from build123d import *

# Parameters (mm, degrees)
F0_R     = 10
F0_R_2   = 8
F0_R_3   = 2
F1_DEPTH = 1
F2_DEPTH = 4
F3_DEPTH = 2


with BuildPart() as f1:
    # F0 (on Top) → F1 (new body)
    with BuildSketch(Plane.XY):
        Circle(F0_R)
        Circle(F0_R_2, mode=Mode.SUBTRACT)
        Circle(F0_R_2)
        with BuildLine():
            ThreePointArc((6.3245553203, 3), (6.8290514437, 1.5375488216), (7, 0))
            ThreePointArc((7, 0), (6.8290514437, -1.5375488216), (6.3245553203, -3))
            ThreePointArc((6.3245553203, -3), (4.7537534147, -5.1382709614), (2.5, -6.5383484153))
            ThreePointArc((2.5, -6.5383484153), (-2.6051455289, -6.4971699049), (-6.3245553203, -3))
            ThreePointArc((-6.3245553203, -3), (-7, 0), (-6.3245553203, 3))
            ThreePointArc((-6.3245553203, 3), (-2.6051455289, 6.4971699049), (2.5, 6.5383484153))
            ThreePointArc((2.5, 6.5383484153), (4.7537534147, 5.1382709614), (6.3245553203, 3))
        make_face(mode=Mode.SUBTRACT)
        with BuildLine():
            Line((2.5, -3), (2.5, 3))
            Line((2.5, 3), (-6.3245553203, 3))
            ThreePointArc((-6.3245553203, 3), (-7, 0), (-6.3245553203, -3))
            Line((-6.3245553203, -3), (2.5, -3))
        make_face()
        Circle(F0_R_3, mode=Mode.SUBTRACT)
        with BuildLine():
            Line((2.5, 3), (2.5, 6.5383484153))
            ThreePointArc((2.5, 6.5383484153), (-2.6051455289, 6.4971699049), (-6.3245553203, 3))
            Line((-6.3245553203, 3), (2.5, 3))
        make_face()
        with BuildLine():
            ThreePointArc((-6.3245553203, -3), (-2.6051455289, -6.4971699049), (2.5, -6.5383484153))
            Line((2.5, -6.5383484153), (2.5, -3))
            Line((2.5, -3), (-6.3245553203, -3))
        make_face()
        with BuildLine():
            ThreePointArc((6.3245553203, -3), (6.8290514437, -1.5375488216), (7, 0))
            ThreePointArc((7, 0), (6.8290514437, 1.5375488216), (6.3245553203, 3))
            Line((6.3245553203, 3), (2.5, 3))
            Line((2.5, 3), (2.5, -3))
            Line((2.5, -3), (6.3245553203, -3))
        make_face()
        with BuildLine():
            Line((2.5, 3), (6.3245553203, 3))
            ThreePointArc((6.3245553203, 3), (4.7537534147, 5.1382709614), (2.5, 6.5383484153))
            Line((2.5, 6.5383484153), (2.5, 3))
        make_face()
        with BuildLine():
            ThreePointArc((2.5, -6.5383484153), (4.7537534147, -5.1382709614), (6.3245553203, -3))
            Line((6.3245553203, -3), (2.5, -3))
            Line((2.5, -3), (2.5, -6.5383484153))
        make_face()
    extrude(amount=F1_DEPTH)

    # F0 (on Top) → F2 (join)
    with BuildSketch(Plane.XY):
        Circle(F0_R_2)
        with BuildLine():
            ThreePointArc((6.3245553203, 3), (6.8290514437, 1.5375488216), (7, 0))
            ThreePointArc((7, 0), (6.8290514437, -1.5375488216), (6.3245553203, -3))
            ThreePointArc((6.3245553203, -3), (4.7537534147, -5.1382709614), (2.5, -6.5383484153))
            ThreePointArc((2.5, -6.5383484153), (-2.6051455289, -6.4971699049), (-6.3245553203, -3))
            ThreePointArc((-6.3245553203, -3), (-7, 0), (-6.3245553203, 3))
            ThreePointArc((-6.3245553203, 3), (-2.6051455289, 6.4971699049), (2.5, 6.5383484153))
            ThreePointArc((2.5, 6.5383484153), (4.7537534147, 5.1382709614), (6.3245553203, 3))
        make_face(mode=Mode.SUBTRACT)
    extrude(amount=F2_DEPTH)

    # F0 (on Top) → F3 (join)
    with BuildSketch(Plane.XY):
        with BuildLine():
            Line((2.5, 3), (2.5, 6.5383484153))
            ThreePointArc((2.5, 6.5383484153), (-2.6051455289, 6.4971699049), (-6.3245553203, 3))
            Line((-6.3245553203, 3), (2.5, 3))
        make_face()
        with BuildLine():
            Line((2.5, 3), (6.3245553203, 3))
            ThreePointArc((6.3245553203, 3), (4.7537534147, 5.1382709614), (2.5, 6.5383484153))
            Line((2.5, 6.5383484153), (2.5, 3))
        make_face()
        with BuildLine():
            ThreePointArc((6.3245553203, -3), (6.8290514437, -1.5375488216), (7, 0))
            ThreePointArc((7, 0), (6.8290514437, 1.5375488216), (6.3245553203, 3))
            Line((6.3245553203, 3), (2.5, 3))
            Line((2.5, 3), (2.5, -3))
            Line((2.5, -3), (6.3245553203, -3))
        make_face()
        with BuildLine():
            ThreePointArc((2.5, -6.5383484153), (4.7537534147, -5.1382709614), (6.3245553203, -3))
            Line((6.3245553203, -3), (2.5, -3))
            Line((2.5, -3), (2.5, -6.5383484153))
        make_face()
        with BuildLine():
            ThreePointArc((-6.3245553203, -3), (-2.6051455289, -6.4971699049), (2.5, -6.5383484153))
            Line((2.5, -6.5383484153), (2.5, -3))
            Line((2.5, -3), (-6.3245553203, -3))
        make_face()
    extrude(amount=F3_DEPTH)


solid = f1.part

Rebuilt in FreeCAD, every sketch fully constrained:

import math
import FreeCAD as App
import Part
import Sketcher

doc = App.newDocument("Part")
params = doc.addObject("Spreadsheet::Sheet", "Params")
for row, (alias, value) in enumerate([
    ("sketch1_diameter", "20 mm"),
    ("sketch1_diameter2", "4 mm"),
    ("pad1_length", "1 mm"),
    ("sketch2_diameter", "16 mm"),
    ("sketch2_radius", "7 mm"),
    ("pad2_length", "4 mm"),
    ("sketch3_radius", "7 mm"),
    ("sketch3_height", "6 mm"),
    ("pad3_length", "2 mm"),
], start=1):
    params.set(f"A{row}", alias)
    params.set(f"B{row}", "=" + value)
    params.setAlias(f"B{row}", alias)

body = doc.addObject("PartDesign::Body", "Body")

sketch1 = body.newObject("Sketcher::SketchObject", "Sketch")
sketch1.AttachmentSupport = (doc.getObject("XY_Plane"), [""])
sketch1.MapMode = "FlatFace"
sketch1.addGeometry([
    Part.Circle(App.Vector(0, 0, 0), App.Vector(0, 0, 1), 10),
    Part.Circle(App.Vector(0, 0, 0), App.Vector(0, 0, 1), 2),
], False)
sketch1.addConstraint([
    Sketcher.Constraint("Coincident", 0, 3, -1, 1),
    Sketcher.Constraint("Coincident", 1, 3, -1, 1),
    Sketcher.Constraint("Diameter", 0, 20.0),
    Sketcher.Constraint("Diameter", 1, 4.0),
])
sketch1.setExpression("Constraints[2]", "Params.sketch1_diameter")
sketch1.setExpression("Constraints[3]", "Params.sketch1_diameter2")
pad1 = body.newObject("PartDesign::Pad", "Pad")
pad1.Profile = sketch1
pad1.setExpression("Length", "Params.pad1_length")

sketch2 = body.newObject("Sketcher::SketchObject", "Sketch001")
sketch2.AttachmentSupport = (doc.getObject("XY_Plane"), [""])
sketch2.MapMode = "FlatFace"
sketch2.addGeometry([
    Part.Circle(App.Vector(0, 0, 0), App.Vector(0, 0, 1), 8),
    Part.ArcOfCircle(Part.Circle(App.Vector(0, 0, 0), App.Vector(0, 0, 1), 7), math.radians(25), math.radians(69)),
    Part.ArcOfCircle(Part.Circle(App.Vector(0, 0, 0), App.Vector(0, 0, 1), 7), math.radians(0), math.radians(25)),
    Part.ArcOfCircle(Part.Circle(App.Vector(0, 0, 0), App.Vector(0, 0, 1), 7), math.radians(-25), math.radians(0)),
    Part.ArcOfCircle(Part.Circle(App.Vector(0, 0, 0), App.Vector(0, 0, 1), 7), math.radians(-69), math.radians(-25)),
    Part.ArcOfCircle(Part.Circle(App.Vector(0, 0, 0), App.Vector(0, 0, 1), 7), math.radians(-155), math.radians(-69)),
    Part.ArcOfCircle(Part.Circle(App.Vector(0, 0, 0), App.Vector(0, 0, 1), 7), math.radians(155), math.radians(205)),
    Part.ArcOfCircle(Part.Circle(App.Vector(0, 0, 0), App.Vector(0, 0, 1), 7), math.radians(69), math.radians(155)),
], False)
sketch2.addConstraint([
    Sketcher.Constraint("Tangent", 1, 1, 2, 2),
    Sketcher.Constraint("Tangent", 2, 1, 3, 2),
    Sketcher.Constraint("Tangent", 3, 1, 4, 2),
    Sketcher.Constraint("Tangent", 4, 1, 5, 2),
    Sketcher.Constraint("Tangent", 5, 1, 6, 2),
    Sketcher.Constraint("Tangent", 6, 1, 7, 2),
    Sketcher.Constraint("Tangent", 7, 1, 1, 2),
    Sketcher.Constraint("Coincident", 0, 3, -1, 1),
    Sketcher.Constraint("Coincident", 1, 3, -1, 1),
    Sketcher.Constraint("Coincident", 3, 3, -1, 1),
    Sketcher.Constraint("Coincident", 5, 3, -1, 1),
    Sketcher.Constraint("PointOnObject", 2, 1, -1),
    Sketcher.Constraint("Horizontal", 3, 1, 5, 1),
    Sketcher.Constraint("Horizontal", 1, 1, 6, 1),
    Sketcher.Constraint("Vertical", 1, 1, 3, 1),
    Sketcher.Constraint("Vertical", 4, 1, 7, 1),
    Sketcher.Constraint("Diameter", 0, 16.0),
    Sketcher.Constraint("Radius", 1, 7.0),
    Sketcher.Constraint("DistanceY", -1, 1, 1, 1, 3.0),
    Sketcher.Constraint("DistanceX", -1, 1, 4, 1, 2.5),
])
sketch2.setExpression("Constraints[16]", "Params.sketch2_diameter")
sketch2.setExpression("Constraints[17]", "Params.sketch2_radius")
pad2 = body.newObject("PartDesign::Pad", "Pad001")
pad2.Profile = sketch2
pad2.setExpression("Length", "Params.pad2_length")

sketch3 = body.newObject("Sketcher::SketchObject", "Sketch002")
sketch3.AttachmentSupport = (doc.getObject("XY_Plane"), [""])
sketch3.MapMode = "FlatFace"
sketch3.addGeometry([
    Part.ArcOfCircle(Part.Circle(App.Vector(0, 0, 0), App.Vector(0, 0, 1), 7), math.radians(69), math.radians(155)),
    Part.LineSegment(App.Vector(-6.3, 3, 0), App.Vector(2.5, 3, 0)),
    Part.LineSegment(App.Vector(2.5, 3, 0), App.Vector(2.5, -3, 0)),
    Part.LineSegment(App.Vector(2.5, -3, 0), App.Vector(-6.3, -3, 0)),
    Part.ArcOfCircle(Part.Circle(App.Vector(0, 0, 0), App.Vector(0, 0, 1), 7), math.radians(-155), math.radians(-69)),
    Part.ArcOfCircle(Part.Circle(App.Vector(0, 0, 0), App.Vector(0, 0, 1), 7), math.radians(-69), math.radians(-25)),
    Part.ArcOfCircle(Part.Circle(App.Vector(0, 0, 0), App.Vector(0, 0, 1), 7), math.radians(-25), math.radians(0)),
    Part.ArcOfCircle(Part.Circle(App.Vector(0, 0, 0), App.Vector(0, 0, 1), 7), math.radians(0), math.radians(25)),
    Part.ArcOfCircle(Part.Circle(App.Vector(0, 0, 0), App.Vector(0, 0, 1), 7), math.radians(25), math.radians(69)),
], False)
sketch3.addConstraint([
    Sketcher.Constraint("Coincident", 0, 2, 1, 1),
    Sketcher.Constraint("Coincident", 1, 2, 2, 1),
    Sketcher.Constraint("Coincident", 2, 2, 3, 1),
    Sketcher.Constraint("Coincident", 3, 2, 4, 1),
    Sketcher.Constraint("Tangent", 4, 2, 5, 1),
    Sketcher.Constraint("Tangent", 5, 2, 6, 1),
    Sketcher.Constraint("Tangent", 6, 2, 7, 1),
    Sketcher.Constraint("Tangent", 7, 2, 8, 1),
    Sketcher.Constraint("Tangent", 8, 2, 0, 1),
    Sketcher.Constraint("Horizontal", 1),
    Sketcher.Constraint("Vertical", 2),
    Sketcher.Constraint("Horizontal", 3),
    Sketcher.Constraint("Coincident", 0, 3, -1, 1),
    Sketcher.Constraint("Coincident", 4, 3, -1, 1),
    Sketcher.Constraint("Coincident", 6, 3, -1, 1),
    Sketcher.Constraint("Equal", 0, 4),
    Sketcher.Constraint("PointOnObject", 6, 2, -1),
    Sketcher.Constraint("Horizontal", 3, 2, 5, 2),
    Sketcher.Constraint("Horizontal", 1, 2, 7, 2),
    Sketcher.Constraint("Vertical", 0, 2, 3, 2),
    Sketcher.Constraint("Vertical", 2, 2, 4, 2),
    Sketcher.Constraint("Vertical", 4, 2, 8, 2),
    Sketcher.Constraint("Radius", 0, 7.0),
    Sketcher.Constraint("DistanceY", 2, 2, 2, 1, 6.0),
    Sketcher.Constraint("DistanceX", -1, 1, 1, 2, 2.5),
])
sketch3.setExpression("Constraints[22]", "Params.sketch3_radius")
sketch3.setExpression("Constraints[23]", "Params.sketch3_height")
pad3 = body.newObject("PartDesign::Pad", "Pad002")
pad3.Profile = sketch3
pad3.setExpression("Length", "Params.pad3_length")

doc.recompute()
